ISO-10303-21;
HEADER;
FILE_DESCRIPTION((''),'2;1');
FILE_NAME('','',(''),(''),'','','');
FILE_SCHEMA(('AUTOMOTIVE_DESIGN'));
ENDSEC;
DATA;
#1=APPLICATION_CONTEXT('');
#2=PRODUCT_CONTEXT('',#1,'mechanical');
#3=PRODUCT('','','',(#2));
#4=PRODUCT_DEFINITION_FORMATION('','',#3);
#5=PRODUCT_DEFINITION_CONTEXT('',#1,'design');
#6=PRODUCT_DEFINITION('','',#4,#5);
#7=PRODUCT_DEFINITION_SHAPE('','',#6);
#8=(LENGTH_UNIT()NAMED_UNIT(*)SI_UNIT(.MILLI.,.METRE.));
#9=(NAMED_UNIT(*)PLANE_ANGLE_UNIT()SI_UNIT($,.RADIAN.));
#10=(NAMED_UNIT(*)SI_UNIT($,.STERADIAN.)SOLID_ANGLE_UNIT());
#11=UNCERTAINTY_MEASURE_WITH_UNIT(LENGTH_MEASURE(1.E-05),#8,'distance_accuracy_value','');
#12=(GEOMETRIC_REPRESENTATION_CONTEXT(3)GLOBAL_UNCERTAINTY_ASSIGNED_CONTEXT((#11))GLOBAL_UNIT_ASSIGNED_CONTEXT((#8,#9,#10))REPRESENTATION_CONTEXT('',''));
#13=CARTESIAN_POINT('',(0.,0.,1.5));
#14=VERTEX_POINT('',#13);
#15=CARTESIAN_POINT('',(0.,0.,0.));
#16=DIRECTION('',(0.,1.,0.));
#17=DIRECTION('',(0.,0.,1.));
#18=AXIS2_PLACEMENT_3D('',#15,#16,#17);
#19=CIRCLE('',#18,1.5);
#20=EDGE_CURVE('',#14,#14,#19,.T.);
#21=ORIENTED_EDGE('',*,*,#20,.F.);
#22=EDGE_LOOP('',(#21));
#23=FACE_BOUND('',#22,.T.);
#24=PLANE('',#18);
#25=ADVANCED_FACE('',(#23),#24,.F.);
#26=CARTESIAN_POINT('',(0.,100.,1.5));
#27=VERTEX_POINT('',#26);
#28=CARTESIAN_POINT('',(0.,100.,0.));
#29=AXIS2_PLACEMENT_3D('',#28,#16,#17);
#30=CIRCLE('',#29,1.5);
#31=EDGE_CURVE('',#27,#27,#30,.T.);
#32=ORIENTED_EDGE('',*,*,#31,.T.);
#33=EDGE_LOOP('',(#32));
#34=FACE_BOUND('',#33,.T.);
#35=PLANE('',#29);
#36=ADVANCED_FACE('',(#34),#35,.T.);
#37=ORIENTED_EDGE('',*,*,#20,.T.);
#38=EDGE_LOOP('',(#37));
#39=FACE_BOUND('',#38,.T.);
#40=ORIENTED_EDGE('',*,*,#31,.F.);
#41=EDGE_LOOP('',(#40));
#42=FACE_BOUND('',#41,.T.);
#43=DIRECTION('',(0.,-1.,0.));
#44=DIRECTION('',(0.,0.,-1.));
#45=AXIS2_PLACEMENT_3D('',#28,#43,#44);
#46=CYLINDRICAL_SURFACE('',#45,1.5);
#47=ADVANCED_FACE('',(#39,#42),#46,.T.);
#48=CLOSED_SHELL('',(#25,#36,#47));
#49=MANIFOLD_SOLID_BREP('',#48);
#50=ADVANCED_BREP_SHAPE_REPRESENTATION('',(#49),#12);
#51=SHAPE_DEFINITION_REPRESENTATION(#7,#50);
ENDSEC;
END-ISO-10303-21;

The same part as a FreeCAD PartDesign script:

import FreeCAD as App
import Part
import Sketcher
Q = App.Units.Quantity

doc = App.newDocument("Part")
body = doc.addObject("PartDesign::Body", "Body")

sketch1 = body.newObject("Sketcher::SketchObject", "Sketch")
sketch1.AttachmentSupport = (doc.getObject("XZ_Plane"), [""])
sketch1.MapMode = "FlatFace"
sketch1.addGeometry(Part.Circle(App.Vector(0, 0, 0), App.Vector(0, 0, 1), 1.5), False)
sketch1.addConstraint([
    Sketcher.Constraint("Coincident", 0, 3, -1, 1),
    Sketcher.Constraint("Diameter", 0, Q("3 mm")),
])
pad1 = body.newObject("PartDesign::Pad", "Pad")
pad1.Profile = sketch1
pad1.Length = 100
pad1.Reversed = True

doc.recompute()
